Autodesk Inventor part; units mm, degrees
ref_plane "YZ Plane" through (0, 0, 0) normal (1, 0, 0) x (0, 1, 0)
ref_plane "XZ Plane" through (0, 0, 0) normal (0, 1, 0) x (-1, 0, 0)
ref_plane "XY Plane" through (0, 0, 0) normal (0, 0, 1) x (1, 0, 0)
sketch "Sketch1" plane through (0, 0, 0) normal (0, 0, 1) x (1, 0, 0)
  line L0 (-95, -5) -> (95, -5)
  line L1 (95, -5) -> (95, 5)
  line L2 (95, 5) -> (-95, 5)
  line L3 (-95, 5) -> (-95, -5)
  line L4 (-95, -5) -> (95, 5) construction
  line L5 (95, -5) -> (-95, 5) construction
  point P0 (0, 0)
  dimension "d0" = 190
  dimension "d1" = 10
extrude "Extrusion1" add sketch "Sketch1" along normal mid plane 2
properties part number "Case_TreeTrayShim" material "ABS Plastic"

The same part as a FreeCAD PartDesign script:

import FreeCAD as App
import Part
import Sketcher
Q = App.Units.Quantity

doc = App.newDocument("Part")
body = doc.addObject("PartDesign::Body", "Body")

sketch1 = body.newObject("Sketcher::SketchObject", "Sketch")
sketch1.AttachmentSupport = (doc.getObject("XY_Plane"), [""])
sketch1.MapMode = "FlatFace"
sketch1.addGeometry([
    Part.LineSegment(App.Vector(-95, 5, 0), App.Vector(-95, -5, 0)),
    Part.LineSegment(App.Vector(-95, -5, 0), App.Vector(95, -5, 0)),
    Part.LineSegment(App.Vector(95, -5, 0), App.Vector(95, 5, 0)),
    Part.LineSegment(App.Vector(95, 5, 0), App.Vector(-95, 5, 0)),
], False)
sketch1.addConstraint([
    Sketcher.Constraint("Coincident", 0, 2, 1, 1),
    Sketcher.Constraint("Coincident", 1, 2, 2, 1),
    Sketcher.Constraint("Coincident", 2, 2, 3, 1),
    Sketcher.Constraint("Coincident", 3, 2, 0, 1),
    Sketcher.Constraint("Vertical", 0),
    Sketcher.Constraint("Horizontal", 1),
    Sketcher.Constraint("Vertical", 2),
    Sketcher.Constraint("Horizontal", 3),
    Sketcher.Constraint("Symmetric", 0, 2, 2, 2, -1, 1),
    Sketcher.Constraint("DistanceX", 1, 1, 1, 2, Q("190 mm")),
    Sketcher.Constraint("DistanceY", 0, 2, 0, 1, Q("10 mm")),
])
pad1 = body.newObject("PartDesign::Pad", "Pad")
pad1.Profile = sketch1
pad1.Length = 2
pad1.Midplane = True

doc.recompute()
